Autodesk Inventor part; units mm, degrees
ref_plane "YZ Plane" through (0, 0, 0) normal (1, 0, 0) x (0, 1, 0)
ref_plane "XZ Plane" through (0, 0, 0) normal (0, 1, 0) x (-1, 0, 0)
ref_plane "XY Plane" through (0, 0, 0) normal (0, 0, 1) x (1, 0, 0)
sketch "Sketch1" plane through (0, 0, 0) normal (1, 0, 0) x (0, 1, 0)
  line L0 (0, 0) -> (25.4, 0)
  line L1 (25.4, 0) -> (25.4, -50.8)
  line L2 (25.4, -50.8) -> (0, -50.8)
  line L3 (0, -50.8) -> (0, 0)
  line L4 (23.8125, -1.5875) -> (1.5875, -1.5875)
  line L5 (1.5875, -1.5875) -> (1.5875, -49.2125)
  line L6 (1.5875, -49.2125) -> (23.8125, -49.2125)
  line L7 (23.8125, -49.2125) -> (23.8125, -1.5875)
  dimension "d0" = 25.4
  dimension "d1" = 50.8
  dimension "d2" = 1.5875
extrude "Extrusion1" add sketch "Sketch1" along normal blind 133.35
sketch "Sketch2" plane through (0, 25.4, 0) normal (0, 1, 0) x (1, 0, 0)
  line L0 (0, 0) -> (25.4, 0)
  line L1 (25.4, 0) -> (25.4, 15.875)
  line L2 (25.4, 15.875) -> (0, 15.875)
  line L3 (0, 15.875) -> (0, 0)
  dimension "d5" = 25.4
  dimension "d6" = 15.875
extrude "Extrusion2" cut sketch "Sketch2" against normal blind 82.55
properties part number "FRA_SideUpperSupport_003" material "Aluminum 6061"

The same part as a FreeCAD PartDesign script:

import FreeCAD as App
import Part
import Sketcher
from FreeCAD import Vector
Q = App.Units.Quantity

doc = App.newDocument("Part")
body = doc.addObject("PartDesign::Body", "Body")

# Sketch on YZ plane
sketch1 = doc.addObject("Sketcher::SketchObject", "Sketch")
body.addObject(sketch1)
sketch1.AttachmentSupport = (doc.YZ_Plane, [""])
sketch1.MapMode = "FlatFace"
sketch1.addGeometry([
    Part.LineSegment(Vector(25.4, 0, 0), Vector(0, 0, 0)),  # 0
    Part.LineSegment(Vector(0, 0, 0), Vector(0, -50.8, 0)),  # 1
    Part.LineSegment(Vector(0, -50.8, 0), Vector(25.4, -50.8, 0)),  # 2
    Part.LineSegment(Vector(25.4, -50.8, 0), Vector(25.4, 0, 0)),  # 3
    Part.LineSegment(Vector(1.5875, -1.5875, 0), Vector(23.8125, -1.5875, 0)),  # 4
    Part.LineSegment(Vector(23.8125, -1.5875, 0), Vector(23.8125, -49.2125, 0)),  # 5
    Part.LineSegment(Vector(23.8125, -49.2125, 0), Vector(1.5875, -49.2125, 0)),  # 6
    Part.LineSegment(Vector(1.5875, -49.2125, 0), Vector(1.5875, -1.5875, 0)),  # 7
], False)
sketch1.addConstraint([
    Sketcher.Constraint("Coincident", 0, 2, 1, 1),
    Sketcher.Constraint("Coincident", 1, 2, 2, 1),
    Sketcher.Constraint("Coincident", 2, 2, 3, 1),
    Sketcher.Constraint("Coincident", 3, 2, 0, 1),
    Sketcher.Constraint("Coincident", 4, 2, 5, 1),
    Sketcher.Constraint("Coincident", 5, 2, 6, 1),
    Sketcher.Constraint("Coincident", 6, 2, 7, 1),
    Sketcher.Constraint("Coincident", 7, 2, 4, 1),
    Sketcher.Constraint("Horizontal", 0),
    Sketcher.Constraint("Vertical", 1),
    Sketcher.Constraint("Horizontal", 2),
    Sketcher.Constraint("Vertical", 3),
    Sketcher.Constraint("Horizontal", 4),
    Sketcher.Constraint("Vertical", 5),
    Sketcher.Constraint("Horizontal", 6),
    Sketcher.Constraint("Vertical", 7),
    Sketcher.Constraint("Coincident", 0, 2, -1, 1),
    Sketcher.Constraint("DistanceX", 0, 2, 0, 1, Q("1 in")),
    Sketcher.Constraint("DistanceY", 1, 2, 1, 1, Q("2 in")),
    Sketcher.Constraint("DistanceY", 4, 2, -1, 1, Q("0.0625 in")),
    Sketcher.Constraint("DistanceX", -1, 1, 6, 2, Q("0.0625 in")),
    Sketcher.Constraint("DistanceX", 4, 2, 3, 2, Q("0.0625 in")),
    Sketcher.Constraint("DistanceY", 2, 2, 5, 2, Q("0.0625 in")),
])
pad1 = doc.addObject("PartDesign::Pad", "Pad")
body.addObject(pad1)
pad1.Profile = sketch1
pad1.Length = Q("5.25 in")

# Sketch on XZ plane
sketch2 = doc.addObject("Sketcher::SketchObject", "Sketch001")
body.addObject(sketch2)
sketch2.AttachmentSupport = (doc.XZ_Plane, [""])
sketch2.MapMode = "FlatFace"
sketch2.AttachmentOffset = App.Placement(Vector(0, 0, -1 * 25.4), App.Rotation())
sketch2.addGeometry([
    Part.LineSegment(Vector(0, -15.875, 0), Vector(0, 0, 0)),
    Part.LineSegment(Vector(0, 0, 0), Vector(25.4, 0, 0)),
    Part.LineSegment(Vector(25.4, 0, 0), Vector(25.4, -15.875, 0)),
    Part.LineSegment(Vector(25.4, -15.875, 0), Vector(0, -15.875, 0)),
], False)
sketch2.addConstraint([
    Sketcher.Constraint("Coincident", 0, 2, 1, 1),
    Sketcher.Constraint("Coincident", 1, 2, 2, 1),
    Sketcher.Constraint("Coincident", 2, 2, 3, 1),
    Sketcher.Constraint("Coincident", 3, 2, 0, 1),
    Sketcher.Constraint("Vertical", 0),
    Sketcher.Constraint("Horizontal", 1),
    Sketcher.Constraint("Vertical", 2),
    Sketcher.Constraint("Horizontal", 3),
    Sketcher.Constraint("Coincident", 0, 2, -1, 1),
    Sketcher.Constraint("DistanceX", 1, 1, 1, 2, Q("1 in")),
    Sketcher.Constraint("DistanceY", 0, 1, 0, 2, Q("0.625 in")),
])
pocket1 = doc.addObject("PartDesign::Pocket", "Pocket")
body.addObject(pocket1)
pocket1.Profile = sketch2
pocket1.Length = Q("3.25 in")
pocket1.Reversed = True

doc.recompute()
